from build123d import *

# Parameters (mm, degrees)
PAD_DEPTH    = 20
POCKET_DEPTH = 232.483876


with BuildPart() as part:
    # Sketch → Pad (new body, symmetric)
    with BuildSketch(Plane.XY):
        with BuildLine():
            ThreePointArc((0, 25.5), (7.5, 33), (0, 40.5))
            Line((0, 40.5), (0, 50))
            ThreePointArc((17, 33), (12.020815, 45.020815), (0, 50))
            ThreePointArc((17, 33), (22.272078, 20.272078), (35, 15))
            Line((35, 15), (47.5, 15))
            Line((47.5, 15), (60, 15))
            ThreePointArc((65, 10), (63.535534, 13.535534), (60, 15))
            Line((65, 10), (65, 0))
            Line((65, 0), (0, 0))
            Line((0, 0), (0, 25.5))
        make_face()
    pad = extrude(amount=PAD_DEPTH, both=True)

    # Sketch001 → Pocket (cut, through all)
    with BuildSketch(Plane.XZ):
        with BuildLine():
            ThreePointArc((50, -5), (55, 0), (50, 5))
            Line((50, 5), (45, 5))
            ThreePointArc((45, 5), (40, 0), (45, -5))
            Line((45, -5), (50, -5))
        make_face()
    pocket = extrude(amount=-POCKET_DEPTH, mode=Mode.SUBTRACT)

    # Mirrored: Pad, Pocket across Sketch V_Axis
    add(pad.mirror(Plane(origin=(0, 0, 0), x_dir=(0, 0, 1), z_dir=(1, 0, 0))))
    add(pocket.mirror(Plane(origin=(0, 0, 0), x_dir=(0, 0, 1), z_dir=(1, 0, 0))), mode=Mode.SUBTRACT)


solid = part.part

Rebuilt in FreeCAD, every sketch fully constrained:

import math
import FreeCAD as App
import Part
import Sketcher

doc = App.newDocument("Part")
body = doc.addObject("PartDesign::Body", "Body")

# Sketch on XY plane
sketch1 = body.newObject("Sketcher::SketchObject", "Sketch")
sketch1.AttachmentSupport = (doc.getObject("XY_Plane"), [""])
sketch1.MapMode = "FlatFace"
sketch1.addGeometry([
    Part.ArcOfCircle(Part.Circle(App.Vector(0, 33, 0), App.Vector(0, 0, 1), 7.5), math.radians(-90), math.radians(90)),  # 0
    Part.LineSegment(App.Vector(0, 25.5, 0), App.Vector(0, 0, 0)),  # 1
    Part.LineSegment(App.Vector(0, 0, 0), App.Vector(65, 0, 0)),  # 2
    Part.LineSegment(App.Vector(65, 0, 0), App.Vector(65, 10, 0)),  # 3
    Part.ArcOfCircle(Part.Circle(App.Vector(60, 10, 0), App.Vector(0, 0, 1), 5), math.radians(0), math.radians(90)),  # 4
    Part.LineSegment(App.Vector(60, 15, 0), App.Vector(35, 15, 0)),  # 5
    Part.ArcOfCircle(Part.Circle(App.Vector(35, 33, 0), App.Vector(0, 0, 1), 18), math.radians(-180), math.radians(-90)),  # 6
    Part.ArcOfCircle(Part.Circle(App.Vector(0, 33, 0), App.Vector(0, 0, 1), 17), math.radians(0), math.radians(90)),  # 7
    Part.LineSegment(App.Vector(0, 50, 0), App.Vector(0, 40.5, 0)),  # 8
], False)
sketch1.addConstraint([
    Sketcher.Constraint("Coincident", 0, 1, 1, 1),
    Sketcher.Constraint("Coincident", 1, 2, 2, 1),
    Sketcher.Constraint("Coincident", 2, 2, 3, 1),
    Sketcher.Constraint("Tangent", 3, 2, 4, 1),
    Sketcher.Constraint("Tangent", 4, 2, 5, 1),
    Sketcher.Constraint("Tangent", 5, 2, 6, 2),
    Sketcher.Constraint("Tangent", 6, 1, 7, 1),
    Sketcher.Constraint("Coincident", 7, 2, 8, 1),
    Sketcher.Constraint("Coincident", 8, 2, 0, 2),
    Sketcher.Constraint("Vertical", 1),
    Sketcher.Constraint("Horizontal", 2),
    Sketcher.Constraint("Vertical", 3),
    Sketcher.Constraint("Horizontal", 5),
    Sketcher.Constraint("Vertical", 8),
    Sketcher.Constraint("Coincident", 1, 2, -1, 1),
    Sketcher.Constraint("Coincident", 7, 3, 0, 3),
    Sketcher.Constraint("PointOnObject", 0, 3, -2),
    Sketcher.Constraint("PointOnObject", 7, 2, -2),
    Sketcher.Constraint("Horizontal", 0, 3, 6, 3),
    Sketcher.Constraint("Radius", 4, 5.0),
    Sketcher.Constraint("Radius", 6, 18.0),
    Sketcher.Constraint("Radius", 7, 17.000001),
    Sketcher.Constraint("Radius", 0, 7.5),
    Sketcher.Constraint("DistanceX", 2, 1, 2, 2, 65.0),
    Sketcher.Constraint("DistanceY", 3, 1, 3, 2, 10.0),
])
pad1 = body.newObject("PartDesign::Pad", "Pad")
pad1.Profile = sketch1
pad1.Length = 40
pad1.Midplane = True

# Sketch on XZ plane
sketch2 = body.newObject("Sketcher::SketchObject", "Sketch001")
sketch2.AttachmentSupport = (doc.getObject("XZ_Plane"), [""])
sketch2.MapMode = "FlatFace"
sketch2.addGeometry([
    Part.ArcOfCircle(Part.Circle(App.Vector(50, 0, 0), App.Vector(0, 0, 1), 5), math.radians(-90), math.radians(90)),
    Part.LineSegment(App.Vector(50, 5, 0), App.Vector(45, 5, 0)),
    Part.ArcOfCircle(Part.Circle(App.Vector(45, 0, 0), App.Vector(0, 0, 1), 5), math.radians(90), math.radians(270)),
    Part.LineSegment(App.Vector(45, -5, 0), App.Vector(50, -5, 0)),
], False)
sketch2.addConstraint([
    Sketcher.Constraint("Tangent", 0, 2, 1, 1),
    Sketcher.Constraint("Tangent", 1, 2, 2, 1),
    Sketcher.Constraint("Tangent", 2, 2, 3, 1),
    Sketcher.Constraint("Tangent", 3, 2, 0, 1),
    Sketcher.Constraint("Horizontal", 1),
    Sketcher.Constraint("Horizontal", 3),
    Sketcher.Constraint("PointOnObject", 0, 3, -1),
    Sketcher.Constraint("Radius", 0, 5.0),
    Sketcher.Constraint("DistanceX", 1, 2, 1, 1, 5.0),
    Sketcher.Constraint("DistanceX", -1, 1, 0, 3, 50.0),
])
pocket1 = body.newObject("PartDesign::Pocket", "Pocket")
pocket1.Profile = sketch2
pocket1.Type = "ThroughAll"
doc.recompute()

mirrored = body.newObject("PartDesign::Mirrored", "Mirrored")
mirrored.Originals = [pad1, pocket1]
mirrored.MirrorPlane = (doc.getObject("YZ_Plane"), [""])
body.Tip = mirrored

doc.recompute()
